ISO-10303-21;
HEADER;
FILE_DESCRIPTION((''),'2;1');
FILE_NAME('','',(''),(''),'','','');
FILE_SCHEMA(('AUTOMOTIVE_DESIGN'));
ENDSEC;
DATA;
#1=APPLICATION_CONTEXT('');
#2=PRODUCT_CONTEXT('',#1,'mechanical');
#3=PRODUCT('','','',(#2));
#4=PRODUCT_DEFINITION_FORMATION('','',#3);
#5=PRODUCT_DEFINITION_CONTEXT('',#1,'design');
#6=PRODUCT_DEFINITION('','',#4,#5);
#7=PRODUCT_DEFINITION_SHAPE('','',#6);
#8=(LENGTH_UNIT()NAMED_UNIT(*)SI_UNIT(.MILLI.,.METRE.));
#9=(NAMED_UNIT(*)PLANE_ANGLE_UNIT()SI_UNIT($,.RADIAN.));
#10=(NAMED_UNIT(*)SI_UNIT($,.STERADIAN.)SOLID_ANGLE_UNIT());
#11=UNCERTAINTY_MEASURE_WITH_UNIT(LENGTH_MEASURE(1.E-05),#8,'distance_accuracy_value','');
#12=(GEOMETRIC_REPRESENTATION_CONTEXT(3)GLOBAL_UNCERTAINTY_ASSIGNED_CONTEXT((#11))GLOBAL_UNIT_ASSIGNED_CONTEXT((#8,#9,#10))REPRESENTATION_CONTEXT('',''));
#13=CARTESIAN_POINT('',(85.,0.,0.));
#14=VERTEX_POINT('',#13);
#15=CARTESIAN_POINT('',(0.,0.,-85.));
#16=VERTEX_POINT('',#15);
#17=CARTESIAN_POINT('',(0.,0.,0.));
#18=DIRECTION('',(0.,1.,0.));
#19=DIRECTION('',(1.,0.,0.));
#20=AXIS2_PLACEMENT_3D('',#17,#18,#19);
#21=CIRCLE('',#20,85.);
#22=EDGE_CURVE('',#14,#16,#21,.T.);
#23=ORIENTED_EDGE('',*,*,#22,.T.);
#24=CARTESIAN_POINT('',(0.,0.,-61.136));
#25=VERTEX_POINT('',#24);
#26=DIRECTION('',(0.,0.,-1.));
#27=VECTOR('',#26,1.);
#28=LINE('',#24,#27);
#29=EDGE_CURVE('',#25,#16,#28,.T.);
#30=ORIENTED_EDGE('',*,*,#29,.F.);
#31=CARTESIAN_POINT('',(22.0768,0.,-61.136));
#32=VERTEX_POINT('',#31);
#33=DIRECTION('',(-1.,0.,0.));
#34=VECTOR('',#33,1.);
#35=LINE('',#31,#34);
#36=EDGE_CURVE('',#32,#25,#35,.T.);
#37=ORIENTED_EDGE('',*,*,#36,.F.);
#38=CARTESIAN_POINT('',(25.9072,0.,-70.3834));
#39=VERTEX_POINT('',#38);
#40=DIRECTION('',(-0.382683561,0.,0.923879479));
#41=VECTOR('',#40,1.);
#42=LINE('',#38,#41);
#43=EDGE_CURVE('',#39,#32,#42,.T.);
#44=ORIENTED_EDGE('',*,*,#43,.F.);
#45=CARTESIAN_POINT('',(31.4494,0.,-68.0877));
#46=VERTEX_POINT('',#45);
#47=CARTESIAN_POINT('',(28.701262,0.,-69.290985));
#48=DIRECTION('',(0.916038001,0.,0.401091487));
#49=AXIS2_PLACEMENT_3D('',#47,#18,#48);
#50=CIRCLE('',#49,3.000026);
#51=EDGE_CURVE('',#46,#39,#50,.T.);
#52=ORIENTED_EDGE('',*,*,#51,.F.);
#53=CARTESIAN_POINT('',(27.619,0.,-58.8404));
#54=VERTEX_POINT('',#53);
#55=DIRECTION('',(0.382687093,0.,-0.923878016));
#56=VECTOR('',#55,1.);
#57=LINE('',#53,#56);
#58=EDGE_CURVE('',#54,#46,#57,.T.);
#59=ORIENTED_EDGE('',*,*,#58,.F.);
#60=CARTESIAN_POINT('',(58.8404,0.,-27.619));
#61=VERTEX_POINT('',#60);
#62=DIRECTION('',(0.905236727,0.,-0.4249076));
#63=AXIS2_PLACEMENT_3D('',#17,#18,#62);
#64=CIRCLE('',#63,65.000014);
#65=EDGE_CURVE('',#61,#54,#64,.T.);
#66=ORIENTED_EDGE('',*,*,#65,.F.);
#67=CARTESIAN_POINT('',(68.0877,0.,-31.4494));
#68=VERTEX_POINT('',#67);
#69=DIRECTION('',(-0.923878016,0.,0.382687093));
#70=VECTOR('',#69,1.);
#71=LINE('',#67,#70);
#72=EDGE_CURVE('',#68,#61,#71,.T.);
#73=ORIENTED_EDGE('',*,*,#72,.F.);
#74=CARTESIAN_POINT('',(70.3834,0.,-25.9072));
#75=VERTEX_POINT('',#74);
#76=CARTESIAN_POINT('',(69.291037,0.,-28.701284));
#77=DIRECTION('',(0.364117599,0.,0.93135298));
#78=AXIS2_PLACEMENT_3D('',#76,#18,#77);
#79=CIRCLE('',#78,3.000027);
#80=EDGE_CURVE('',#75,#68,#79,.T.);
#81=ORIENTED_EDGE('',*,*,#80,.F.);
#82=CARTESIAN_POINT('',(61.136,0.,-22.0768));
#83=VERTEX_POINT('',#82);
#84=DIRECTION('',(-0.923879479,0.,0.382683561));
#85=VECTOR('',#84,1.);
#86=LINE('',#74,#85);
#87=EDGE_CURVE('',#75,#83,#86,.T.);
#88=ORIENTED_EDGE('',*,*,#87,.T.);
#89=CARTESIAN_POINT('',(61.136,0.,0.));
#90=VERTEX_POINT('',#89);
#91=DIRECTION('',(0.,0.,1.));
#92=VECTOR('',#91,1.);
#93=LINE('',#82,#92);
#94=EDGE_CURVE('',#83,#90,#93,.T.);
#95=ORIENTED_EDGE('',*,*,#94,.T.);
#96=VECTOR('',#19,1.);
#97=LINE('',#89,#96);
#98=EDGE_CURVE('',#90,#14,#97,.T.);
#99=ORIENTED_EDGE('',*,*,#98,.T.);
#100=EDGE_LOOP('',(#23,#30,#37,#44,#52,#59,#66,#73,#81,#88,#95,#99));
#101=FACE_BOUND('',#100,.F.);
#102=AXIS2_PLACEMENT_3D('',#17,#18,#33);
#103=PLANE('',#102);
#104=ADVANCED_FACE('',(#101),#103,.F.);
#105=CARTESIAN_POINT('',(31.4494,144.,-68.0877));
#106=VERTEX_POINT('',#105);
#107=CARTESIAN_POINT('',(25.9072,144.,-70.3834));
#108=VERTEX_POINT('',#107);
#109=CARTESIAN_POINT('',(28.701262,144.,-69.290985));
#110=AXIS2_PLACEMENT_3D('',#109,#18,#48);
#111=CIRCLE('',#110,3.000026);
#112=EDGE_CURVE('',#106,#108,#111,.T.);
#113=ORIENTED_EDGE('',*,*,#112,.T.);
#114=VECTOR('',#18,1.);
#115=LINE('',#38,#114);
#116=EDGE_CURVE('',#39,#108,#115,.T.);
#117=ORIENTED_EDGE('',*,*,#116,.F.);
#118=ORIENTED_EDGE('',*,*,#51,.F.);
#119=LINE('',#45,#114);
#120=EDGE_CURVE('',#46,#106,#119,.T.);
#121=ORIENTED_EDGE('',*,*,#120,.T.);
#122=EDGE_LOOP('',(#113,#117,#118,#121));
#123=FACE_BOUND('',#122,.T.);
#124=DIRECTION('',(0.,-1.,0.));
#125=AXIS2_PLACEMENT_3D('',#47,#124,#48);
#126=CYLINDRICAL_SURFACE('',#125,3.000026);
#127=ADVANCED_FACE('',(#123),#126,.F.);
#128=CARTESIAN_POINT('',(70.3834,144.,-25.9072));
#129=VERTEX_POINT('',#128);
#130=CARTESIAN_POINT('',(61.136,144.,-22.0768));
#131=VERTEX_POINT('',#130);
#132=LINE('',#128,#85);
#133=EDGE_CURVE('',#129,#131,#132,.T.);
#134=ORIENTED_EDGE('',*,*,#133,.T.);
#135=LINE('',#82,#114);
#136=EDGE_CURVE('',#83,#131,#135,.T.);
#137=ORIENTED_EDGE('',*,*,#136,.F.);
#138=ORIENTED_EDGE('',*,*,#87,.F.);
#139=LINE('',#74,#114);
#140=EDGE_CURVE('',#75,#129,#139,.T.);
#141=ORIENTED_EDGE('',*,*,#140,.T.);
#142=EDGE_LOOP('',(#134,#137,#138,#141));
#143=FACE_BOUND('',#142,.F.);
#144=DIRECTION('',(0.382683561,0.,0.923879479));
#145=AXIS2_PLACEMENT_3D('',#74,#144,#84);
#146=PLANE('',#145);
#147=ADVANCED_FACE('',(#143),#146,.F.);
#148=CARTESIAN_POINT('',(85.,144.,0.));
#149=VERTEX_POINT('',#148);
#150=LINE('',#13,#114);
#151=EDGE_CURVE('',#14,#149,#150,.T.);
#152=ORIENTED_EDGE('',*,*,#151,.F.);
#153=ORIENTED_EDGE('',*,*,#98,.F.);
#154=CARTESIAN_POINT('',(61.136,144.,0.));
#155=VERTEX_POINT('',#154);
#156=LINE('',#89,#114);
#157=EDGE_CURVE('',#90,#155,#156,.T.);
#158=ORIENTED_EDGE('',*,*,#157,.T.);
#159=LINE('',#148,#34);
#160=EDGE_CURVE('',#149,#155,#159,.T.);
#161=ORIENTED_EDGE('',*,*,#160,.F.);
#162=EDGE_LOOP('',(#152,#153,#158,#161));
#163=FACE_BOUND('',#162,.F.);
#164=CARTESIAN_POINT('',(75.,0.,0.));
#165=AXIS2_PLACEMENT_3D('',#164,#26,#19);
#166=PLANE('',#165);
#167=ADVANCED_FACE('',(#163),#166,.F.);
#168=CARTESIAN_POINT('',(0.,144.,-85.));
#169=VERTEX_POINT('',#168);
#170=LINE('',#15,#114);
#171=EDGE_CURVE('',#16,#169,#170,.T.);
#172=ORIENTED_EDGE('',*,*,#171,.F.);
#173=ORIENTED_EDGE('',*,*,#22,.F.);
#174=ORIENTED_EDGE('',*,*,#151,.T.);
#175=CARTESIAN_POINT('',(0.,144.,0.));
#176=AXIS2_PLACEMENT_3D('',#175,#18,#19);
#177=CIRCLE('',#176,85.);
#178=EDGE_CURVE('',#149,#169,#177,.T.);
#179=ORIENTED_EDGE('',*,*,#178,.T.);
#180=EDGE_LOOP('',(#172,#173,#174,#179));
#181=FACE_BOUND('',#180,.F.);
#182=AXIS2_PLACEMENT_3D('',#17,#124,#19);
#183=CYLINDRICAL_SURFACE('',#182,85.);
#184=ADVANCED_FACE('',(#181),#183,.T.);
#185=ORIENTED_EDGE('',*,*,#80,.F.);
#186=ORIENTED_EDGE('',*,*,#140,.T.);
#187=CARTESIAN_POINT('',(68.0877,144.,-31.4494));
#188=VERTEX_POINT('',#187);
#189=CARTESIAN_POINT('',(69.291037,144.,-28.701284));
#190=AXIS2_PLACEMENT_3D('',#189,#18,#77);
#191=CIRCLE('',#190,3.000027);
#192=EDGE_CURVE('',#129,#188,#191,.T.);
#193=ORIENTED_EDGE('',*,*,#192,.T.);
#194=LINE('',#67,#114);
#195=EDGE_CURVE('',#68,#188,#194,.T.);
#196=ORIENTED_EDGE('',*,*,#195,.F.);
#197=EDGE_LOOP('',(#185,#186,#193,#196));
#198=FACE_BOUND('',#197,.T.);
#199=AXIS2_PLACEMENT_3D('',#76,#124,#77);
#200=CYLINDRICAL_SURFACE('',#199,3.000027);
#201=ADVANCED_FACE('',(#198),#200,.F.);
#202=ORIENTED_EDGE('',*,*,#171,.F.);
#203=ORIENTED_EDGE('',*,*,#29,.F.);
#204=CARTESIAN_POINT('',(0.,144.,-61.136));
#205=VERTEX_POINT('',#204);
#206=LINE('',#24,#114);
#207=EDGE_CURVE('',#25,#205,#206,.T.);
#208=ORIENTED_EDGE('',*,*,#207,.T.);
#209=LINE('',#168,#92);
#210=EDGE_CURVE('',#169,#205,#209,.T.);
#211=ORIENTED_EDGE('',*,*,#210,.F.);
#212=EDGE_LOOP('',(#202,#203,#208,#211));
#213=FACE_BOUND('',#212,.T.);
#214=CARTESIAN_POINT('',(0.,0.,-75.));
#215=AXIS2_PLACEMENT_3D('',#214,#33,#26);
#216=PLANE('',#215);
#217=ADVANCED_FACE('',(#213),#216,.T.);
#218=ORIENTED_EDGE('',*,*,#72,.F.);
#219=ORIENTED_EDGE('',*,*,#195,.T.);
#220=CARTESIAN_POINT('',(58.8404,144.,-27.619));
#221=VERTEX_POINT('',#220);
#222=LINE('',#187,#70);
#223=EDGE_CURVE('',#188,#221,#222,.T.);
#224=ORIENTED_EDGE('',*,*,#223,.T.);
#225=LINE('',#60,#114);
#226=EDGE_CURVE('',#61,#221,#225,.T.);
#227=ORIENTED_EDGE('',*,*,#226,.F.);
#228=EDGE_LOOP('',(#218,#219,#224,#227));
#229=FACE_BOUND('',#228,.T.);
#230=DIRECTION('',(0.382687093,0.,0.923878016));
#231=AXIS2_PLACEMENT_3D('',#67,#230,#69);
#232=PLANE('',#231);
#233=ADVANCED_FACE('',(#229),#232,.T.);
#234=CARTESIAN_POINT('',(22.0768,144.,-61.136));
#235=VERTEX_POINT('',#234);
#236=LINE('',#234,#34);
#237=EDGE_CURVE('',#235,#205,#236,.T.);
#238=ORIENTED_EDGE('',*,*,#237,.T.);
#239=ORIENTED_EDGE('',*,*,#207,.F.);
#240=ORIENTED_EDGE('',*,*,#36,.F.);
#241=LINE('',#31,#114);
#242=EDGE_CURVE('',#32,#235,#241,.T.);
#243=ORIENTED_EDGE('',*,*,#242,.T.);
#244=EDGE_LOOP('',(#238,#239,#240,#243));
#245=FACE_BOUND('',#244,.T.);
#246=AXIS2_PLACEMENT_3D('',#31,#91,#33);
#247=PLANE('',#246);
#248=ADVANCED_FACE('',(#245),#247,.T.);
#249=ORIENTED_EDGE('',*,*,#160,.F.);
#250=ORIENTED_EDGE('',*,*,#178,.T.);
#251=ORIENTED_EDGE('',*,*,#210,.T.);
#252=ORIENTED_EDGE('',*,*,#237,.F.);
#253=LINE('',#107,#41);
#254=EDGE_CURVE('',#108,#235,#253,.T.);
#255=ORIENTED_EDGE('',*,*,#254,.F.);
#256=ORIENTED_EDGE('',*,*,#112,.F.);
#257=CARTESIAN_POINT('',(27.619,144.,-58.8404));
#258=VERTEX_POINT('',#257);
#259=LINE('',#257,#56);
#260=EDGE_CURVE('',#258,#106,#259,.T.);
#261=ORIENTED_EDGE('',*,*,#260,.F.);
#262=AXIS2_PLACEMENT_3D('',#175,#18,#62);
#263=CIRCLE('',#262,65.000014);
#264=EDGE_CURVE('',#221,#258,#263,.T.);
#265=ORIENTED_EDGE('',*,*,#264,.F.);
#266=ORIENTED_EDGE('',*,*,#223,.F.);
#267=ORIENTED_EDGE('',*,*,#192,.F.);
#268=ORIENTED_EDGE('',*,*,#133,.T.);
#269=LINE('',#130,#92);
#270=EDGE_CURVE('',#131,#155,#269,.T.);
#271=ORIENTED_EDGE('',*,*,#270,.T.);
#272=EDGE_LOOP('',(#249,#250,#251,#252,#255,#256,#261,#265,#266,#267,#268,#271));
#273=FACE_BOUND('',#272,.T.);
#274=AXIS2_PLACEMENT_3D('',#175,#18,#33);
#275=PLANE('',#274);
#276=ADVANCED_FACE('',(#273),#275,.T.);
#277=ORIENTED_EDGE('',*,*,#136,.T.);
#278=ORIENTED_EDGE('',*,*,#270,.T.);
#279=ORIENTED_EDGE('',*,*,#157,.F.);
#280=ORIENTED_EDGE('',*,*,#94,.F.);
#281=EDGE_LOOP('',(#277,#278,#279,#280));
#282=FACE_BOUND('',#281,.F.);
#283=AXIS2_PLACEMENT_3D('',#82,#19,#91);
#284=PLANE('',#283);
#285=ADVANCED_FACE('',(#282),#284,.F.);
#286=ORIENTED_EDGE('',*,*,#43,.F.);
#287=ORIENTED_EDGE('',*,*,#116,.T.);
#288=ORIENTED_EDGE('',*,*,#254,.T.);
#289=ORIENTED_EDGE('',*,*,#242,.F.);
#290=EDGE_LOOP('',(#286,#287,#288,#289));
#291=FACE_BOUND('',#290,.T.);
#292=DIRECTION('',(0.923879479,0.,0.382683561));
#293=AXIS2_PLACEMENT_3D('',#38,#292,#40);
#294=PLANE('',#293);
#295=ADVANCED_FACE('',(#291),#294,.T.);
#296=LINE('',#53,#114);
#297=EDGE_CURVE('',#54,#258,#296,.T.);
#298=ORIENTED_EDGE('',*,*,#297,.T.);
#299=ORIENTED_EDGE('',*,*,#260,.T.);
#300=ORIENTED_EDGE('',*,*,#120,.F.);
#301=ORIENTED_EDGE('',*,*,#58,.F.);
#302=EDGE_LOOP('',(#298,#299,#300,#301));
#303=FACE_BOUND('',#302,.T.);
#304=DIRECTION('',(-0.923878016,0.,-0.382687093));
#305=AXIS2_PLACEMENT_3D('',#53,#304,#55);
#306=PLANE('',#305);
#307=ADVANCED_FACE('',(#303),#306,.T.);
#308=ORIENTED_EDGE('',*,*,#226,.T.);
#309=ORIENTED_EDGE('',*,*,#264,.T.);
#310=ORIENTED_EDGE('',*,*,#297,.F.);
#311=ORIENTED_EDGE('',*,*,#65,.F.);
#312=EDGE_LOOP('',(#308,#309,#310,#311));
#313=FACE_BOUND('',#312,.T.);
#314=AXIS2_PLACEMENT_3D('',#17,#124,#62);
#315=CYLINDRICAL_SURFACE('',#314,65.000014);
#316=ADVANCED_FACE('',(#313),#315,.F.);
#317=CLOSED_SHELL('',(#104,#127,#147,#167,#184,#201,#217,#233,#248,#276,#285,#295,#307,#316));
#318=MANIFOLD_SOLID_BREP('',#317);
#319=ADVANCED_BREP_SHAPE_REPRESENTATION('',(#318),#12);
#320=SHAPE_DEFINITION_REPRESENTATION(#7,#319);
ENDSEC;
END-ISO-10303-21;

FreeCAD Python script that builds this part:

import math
import FreeCAD as App
import Part
import Sketcher
Q = App.Units.Quantity

doc = App.newDocument("Part")
body = doc.addObject("PartDesign::Body", "Body")

# Sketch on XZ plane
sketch1 = body.newObject("Sketcher::SketchObject", "Sketch")
sketch1.AttachmentSupport = (doc.getObject("XZ_Plane"), [""])
sketch1.MapMode = "FlatFace"
sketch1.addGeometry([
    Part.ArcOfCircle(Part.Circle(App.Vector(0, 0, 0), App.Vector(0, 0, 1), 85), math.radians(-90), math.radians(0)),  # 0
    Part.LineSegment(App.Vector(0, -85, 0), App.Vector(0, -61.1, 0)),  # 1
    Part.LineSegment(App.Vector(0, -61.1, 0), App.Vector(22.1, -61.1, 0)),  # 2
    Part.LineSegment(App.Vector(22.1, -61.1, 0), App.Vector(25.9, -70.4, 0)),  # 3
    Part.ArcOfCircle(Part.Circle(App.Vector(28.7, -69.3, 0), App.Vector(0, 0, 1), 3), math.radians(-159), math.radians(24)),  # 4
    Part.LineSegment(App.Vector(31.4, -68.1, 0), App.Vector(27.6, -58.8, 0)),  # 5
    Part.ArcOfCircle(Part.Circle(App.Vector(0, 0, 0), App.Vector(0, 0, 1), 65), math.radians(-65), math.radians(-25)),  # 6
    Part.LineSegment(App.Vector(58.8, -27.6, 0), App.Vector(68.1, -31.4, 0)),  # 7
    Part.ArcOfCircle(Part.Circle(App.Vector(69.3, -28.7, 0), App.Vector(0, 0, 1), 3), math.radians(-114), math.radians(69)),  # 8
    Part.LineSegment(App.Vector(70.4, -25.9, 0), App.Vector(61.1, -22.1, 0)),  # 9
    Part.LineSegment(App.Vector(61.1, -22.1, 0), App.Vector(61.1, 0, 0)),  # 10
    Part.LineSegment(App.Vector(61.1, 0, 0), App.Vector(85, 0, 0)),  # 11
], False)
sketch1.addConstraint([
    Sketcher.Constraint("Coincident", 0, 1, 1, 1),
    Sketcher.Constraint("Coincident", 1, 2, 2, 1),
    Sketcher.Constraint("Coincident", 2, 2, 3, 1),
    Sketcher.Constraint("Coincident", 3, 2, 4, 1),
    Sketcher.Constraint("Coincident", 4, 2, 5, 1),
    Sketcher.Constraint("Coincident", 5, 2, 6, 1),
    Sketcher.Constraint("Coincident", 6, 2, 7, 1),
    Sketcher.Constraint("Coincident", 7, 2, 8, 1),
    Sketcher.Constraint("Coincident", 8, 2, 9, 1),
    Sketcher.Constraint("Coincident", 9, 2, 10, 1),
    Sketcher.Constraint("Coincident", 10, 2, 11, 1),
    Sketcher.Constraint("Coincident", 11, 2, 0, 2),
    Sketcher.Constraint("Vertical", 1),
    Sketcher.Constraint("Horizontal", 2),
    Sketcher.Constraint("Vertical", 10),
    Sketcher.Constraint("Horizontal", 11),
    Sketcher.Constraint("Coincident", 0, 3, -1, 1),
    Sketcher.Constraint("Coincident", 6, 3, -1, 1),
    Sketcher.Constraint("Equal", 4, 8),
    Sketcher.Constraint("PointOnObject", 0, 1, -2),
    Sketcher.Constraint("PointOnObject", 10, 2, -1),
    Sketcher.Constraint("Parallel", 3, 5),
    Sketcher.Constraint("Parallel", 7, 9),
    Sketcher.Constraint("Equal", 11, 1),
    Sketcher.Constraint("Equal", 2, 10),
    Sketcher.Constraint("Equal", 3, 5),
    Sketcher.Constraint("Equal", 5, 7),
    Sketcher.Constraint("Equal", 7, 9),
    Sketcher.Constraint("Radius", 0, Q("85 mm")),
    Sketcher.Constraint("Radius", 4, Q("3 mm")),
    Sketcher.Constraint("Angle", 7, Q("-22.5002 deg")),
    Sketcher.Constraint("Radius", 6, Q("65 mm")),
    Sketcher.Constraint("Angle", 3, Q("-67.5 deg")),
    Sketcher.Constraint("DistanceX", 11, 1, 11, 2, Q("23.864 mm")),
    Sketcher.Constraint("DistanceX", 2, 1, 2, 2, Q("22.0768 mm")),
    Sketcher.Constraint("DistanceY", 4, 3, -1, 1, Q("69.291 mm")),
    Sketcher.Constraint("DistanceX", -1, 1, 8, 3, Q("69.291 mm")),
    Sketcher.Constraint("DistanceX", -1, 1, 5, 2, Q("27.619 mm")),
])
pad1 = body.newObject("PartDesign::Pad", "Pad")
pad1.Profile = sketch1
pad1.Length = 144
pad1.Reversed = True

doc.recompute()
